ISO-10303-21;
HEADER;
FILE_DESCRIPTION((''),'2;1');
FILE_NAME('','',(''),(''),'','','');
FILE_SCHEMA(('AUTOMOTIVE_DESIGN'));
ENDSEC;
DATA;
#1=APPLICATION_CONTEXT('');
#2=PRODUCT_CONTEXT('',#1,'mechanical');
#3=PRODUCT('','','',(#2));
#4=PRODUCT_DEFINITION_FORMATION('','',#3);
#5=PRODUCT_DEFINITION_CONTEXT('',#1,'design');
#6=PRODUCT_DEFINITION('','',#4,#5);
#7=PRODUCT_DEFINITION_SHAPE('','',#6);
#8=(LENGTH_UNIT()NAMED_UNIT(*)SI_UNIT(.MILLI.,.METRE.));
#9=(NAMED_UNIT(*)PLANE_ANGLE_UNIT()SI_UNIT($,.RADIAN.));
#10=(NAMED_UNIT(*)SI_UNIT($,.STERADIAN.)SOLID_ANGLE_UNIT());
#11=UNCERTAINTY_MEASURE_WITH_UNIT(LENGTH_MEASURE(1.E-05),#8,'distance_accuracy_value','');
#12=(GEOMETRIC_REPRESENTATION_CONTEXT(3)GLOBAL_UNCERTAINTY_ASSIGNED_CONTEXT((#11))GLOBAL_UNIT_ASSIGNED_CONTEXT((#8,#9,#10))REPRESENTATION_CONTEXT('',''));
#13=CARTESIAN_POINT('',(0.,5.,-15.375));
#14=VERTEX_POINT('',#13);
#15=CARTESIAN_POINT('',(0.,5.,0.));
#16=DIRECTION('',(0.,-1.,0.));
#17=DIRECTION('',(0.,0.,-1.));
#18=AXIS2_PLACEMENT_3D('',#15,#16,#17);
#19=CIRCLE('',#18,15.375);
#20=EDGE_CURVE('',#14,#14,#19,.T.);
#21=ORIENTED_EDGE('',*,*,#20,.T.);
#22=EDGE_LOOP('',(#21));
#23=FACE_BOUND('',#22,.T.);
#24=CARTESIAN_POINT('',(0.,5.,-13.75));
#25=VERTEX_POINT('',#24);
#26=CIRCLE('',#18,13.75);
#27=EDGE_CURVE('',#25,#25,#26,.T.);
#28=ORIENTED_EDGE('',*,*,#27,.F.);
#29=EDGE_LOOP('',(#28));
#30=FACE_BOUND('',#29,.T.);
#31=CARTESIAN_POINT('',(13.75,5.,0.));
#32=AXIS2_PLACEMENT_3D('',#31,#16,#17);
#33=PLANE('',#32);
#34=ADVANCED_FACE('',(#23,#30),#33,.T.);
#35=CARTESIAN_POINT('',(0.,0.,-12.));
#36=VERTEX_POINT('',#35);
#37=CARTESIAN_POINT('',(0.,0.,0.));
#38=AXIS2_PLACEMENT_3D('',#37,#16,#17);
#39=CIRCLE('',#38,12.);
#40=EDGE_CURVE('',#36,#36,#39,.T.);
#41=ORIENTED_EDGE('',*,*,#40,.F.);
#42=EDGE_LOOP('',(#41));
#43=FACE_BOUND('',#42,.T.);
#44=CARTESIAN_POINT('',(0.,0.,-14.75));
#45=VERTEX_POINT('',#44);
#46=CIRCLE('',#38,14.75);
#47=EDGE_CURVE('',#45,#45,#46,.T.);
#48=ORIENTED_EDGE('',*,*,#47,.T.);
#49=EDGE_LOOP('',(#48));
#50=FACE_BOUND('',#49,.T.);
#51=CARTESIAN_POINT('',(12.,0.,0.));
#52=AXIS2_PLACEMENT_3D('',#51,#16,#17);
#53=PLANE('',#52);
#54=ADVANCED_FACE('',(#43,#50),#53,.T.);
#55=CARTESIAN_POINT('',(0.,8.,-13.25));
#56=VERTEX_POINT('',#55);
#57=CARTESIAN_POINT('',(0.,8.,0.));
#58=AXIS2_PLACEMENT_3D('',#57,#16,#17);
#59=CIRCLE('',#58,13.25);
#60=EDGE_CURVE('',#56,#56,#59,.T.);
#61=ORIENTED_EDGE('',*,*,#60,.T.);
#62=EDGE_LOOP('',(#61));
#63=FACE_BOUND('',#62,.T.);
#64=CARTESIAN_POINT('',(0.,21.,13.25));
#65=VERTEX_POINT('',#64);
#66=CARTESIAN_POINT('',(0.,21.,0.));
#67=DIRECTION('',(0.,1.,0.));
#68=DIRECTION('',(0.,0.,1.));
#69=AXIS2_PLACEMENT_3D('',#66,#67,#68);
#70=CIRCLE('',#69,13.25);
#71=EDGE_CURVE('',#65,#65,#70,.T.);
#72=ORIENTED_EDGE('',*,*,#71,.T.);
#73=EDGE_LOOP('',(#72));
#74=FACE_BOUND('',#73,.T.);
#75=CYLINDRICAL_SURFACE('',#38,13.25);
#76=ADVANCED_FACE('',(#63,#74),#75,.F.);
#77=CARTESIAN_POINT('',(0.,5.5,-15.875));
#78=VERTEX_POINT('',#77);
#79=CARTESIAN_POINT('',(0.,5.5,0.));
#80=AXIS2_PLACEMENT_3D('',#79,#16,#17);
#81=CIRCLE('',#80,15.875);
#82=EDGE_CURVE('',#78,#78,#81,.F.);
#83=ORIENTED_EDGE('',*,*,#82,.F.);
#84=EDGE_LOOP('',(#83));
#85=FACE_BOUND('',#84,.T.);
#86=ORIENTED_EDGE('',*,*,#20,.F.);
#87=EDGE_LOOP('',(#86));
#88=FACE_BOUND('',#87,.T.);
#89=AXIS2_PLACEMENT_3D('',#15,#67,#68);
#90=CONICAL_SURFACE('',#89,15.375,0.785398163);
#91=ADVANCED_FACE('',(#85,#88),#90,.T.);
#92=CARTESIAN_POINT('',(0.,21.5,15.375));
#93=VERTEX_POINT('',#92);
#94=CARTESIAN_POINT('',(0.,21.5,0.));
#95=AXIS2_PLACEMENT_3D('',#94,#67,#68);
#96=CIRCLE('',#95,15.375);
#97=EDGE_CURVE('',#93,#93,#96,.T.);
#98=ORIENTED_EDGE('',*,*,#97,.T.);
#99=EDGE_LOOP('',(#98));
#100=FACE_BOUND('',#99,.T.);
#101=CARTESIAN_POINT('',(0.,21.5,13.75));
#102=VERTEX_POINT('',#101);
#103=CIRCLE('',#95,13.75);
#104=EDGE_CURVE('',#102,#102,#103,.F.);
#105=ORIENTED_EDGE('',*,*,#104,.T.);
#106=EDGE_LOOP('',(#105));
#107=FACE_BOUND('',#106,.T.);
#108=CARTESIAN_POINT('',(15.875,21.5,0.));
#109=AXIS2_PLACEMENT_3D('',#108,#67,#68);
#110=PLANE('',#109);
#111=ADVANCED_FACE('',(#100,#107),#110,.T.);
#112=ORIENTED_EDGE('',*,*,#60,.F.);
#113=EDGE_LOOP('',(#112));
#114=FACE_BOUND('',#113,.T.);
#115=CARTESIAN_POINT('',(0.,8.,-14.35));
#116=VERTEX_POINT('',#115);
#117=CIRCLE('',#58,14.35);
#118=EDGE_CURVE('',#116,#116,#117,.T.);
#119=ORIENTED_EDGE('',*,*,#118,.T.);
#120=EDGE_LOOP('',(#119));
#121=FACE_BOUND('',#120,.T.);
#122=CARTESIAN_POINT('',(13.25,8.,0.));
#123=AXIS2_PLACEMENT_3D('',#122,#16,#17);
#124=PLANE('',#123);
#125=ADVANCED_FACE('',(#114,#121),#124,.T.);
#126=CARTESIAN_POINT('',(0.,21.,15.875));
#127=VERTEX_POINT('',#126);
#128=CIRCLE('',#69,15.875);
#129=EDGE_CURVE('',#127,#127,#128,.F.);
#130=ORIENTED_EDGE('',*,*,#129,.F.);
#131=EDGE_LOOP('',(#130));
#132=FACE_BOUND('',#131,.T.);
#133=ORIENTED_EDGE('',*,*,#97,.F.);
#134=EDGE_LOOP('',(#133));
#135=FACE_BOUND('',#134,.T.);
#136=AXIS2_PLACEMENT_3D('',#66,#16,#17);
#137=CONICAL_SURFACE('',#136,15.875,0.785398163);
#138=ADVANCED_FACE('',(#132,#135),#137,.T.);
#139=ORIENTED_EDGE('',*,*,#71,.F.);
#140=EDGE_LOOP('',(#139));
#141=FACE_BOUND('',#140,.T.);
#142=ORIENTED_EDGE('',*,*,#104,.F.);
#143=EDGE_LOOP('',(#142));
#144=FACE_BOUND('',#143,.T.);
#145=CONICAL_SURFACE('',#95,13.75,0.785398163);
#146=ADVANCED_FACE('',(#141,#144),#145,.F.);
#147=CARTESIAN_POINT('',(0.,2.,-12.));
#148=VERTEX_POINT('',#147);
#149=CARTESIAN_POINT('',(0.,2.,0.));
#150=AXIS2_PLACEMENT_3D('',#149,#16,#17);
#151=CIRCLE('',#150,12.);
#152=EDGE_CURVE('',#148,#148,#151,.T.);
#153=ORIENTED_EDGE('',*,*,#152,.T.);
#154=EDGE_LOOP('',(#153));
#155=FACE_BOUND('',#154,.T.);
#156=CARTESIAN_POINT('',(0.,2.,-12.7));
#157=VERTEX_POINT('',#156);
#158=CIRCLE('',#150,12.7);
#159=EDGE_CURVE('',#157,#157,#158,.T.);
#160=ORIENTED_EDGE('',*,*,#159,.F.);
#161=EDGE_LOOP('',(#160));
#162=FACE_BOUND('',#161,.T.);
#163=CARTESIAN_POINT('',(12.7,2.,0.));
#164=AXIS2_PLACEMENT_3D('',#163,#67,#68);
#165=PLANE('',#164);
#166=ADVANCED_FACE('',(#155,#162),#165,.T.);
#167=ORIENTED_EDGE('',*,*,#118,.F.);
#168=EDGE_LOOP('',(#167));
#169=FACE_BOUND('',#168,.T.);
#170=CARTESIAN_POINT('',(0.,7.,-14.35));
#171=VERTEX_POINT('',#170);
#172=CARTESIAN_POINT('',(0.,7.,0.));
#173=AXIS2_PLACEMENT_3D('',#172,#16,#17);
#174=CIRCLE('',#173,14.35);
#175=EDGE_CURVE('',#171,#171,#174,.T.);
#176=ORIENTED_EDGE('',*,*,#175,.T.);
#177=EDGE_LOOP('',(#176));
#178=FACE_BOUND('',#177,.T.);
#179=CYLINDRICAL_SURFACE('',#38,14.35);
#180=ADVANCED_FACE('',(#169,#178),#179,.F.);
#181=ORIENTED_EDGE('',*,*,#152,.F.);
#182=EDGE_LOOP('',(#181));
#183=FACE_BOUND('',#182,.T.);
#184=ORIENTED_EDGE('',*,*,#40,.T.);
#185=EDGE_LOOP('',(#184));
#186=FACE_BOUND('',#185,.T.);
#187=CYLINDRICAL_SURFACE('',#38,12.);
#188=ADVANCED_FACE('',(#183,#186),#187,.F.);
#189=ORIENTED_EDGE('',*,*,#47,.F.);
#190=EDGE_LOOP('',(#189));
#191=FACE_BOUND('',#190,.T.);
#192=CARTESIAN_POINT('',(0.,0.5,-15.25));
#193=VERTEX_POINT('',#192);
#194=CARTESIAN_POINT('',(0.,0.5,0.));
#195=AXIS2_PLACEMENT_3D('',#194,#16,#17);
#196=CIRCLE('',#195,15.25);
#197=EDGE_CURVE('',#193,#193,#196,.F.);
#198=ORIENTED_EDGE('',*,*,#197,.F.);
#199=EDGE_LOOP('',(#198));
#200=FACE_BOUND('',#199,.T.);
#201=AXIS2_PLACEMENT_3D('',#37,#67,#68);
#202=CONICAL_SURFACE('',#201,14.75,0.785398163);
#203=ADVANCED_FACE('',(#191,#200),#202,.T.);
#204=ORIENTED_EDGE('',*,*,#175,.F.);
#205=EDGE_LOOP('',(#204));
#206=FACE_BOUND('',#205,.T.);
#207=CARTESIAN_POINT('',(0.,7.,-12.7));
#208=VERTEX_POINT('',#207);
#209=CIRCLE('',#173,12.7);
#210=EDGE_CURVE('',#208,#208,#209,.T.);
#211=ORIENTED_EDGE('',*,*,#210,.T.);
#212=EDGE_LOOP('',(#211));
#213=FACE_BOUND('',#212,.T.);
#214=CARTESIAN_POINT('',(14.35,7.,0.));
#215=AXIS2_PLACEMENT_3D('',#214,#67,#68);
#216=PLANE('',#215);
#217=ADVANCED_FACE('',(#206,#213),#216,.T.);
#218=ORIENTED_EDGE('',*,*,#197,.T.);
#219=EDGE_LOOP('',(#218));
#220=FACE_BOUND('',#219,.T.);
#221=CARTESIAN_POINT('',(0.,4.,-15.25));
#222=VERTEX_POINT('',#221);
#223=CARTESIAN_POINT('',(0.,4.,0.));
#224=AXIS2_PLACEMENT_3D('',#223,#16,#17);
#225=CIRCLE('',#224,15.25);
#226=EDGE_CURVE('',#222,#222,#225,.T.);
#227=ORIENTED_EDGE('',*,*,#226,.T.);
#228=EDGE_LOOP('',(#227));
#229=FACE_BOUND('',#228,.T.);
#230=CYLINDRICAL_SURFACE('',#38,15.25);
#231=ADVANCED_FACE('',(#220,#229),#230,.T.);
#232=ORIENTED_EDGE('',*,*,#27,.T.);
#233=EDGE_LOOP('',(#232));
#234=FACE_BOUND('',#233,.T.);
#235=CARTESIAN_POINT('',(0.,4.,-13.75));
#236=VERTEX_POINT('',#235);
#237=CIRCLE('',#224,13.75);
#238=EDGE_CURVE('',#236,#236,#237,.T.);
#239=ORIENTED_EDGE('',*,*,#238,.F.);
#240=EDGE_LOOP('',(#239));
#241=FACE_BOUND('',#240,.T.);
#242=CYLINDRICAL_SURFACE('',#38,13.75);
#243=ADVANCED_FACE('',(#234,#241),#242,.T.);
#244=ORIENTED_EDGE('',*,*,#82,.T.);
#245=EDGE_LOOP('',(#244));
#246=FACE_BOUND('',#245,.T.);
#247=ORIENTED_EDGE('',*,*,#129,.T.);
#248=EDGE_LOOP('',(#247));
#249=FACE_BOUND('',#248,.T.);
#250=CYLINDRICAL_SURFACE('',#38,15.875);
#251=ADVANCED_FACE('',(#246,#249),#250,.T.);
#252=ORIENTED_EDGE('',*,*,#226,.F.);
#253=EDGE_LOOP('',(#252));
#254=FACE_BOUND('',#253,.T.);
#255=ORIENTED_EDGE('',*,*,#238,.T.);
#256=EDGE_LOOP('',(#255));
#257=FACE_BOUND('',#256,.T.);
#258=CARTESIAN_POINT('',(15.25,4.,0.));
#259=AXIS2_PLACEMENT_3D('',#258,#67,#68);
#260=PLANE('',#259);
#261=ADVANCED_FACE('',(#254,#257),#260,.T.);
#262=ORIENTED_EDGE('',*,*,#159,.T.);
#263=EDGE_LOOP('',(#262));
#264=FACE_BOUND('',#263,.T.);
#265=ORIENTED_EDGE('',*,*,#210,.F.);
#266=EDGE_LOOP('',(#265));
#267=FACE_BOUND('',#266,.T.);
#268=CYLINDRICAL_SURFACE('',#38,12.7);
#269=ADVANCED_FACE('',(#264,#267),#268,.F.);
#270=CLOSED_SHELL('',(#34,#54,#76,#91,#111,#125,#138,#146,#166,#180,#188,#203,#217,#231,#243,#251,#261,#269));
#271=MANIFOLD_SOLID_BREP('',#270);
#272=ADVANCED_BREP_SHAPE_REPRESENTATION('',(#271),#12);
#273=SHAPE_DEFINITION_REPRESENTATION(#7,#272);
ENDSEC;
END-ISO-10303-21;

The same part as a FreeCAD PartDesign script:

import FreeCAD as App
import Part
import Sketcher
from FreeCAD import Vector


def edges_at(feature, points):
    """Names of the edges that pass closest to the given points."""
    edges = feature.Shape.Edges
    near = lambda p: min(range(len(edges)), key=lambda i: edges[i].distToShape(Part.Vertex(*p))[0])
    return sorted({f"Edge{near(p) + 1}" for p in points})


def add_polygon(sketch, points):
    """Adds a closed chain of lines whose ends are joined by coincident constraints."""
    first, n = sketch.GeometryCount, len(points)
    for a, b in zip(points, points[1:] + points[:1]):
        sketch.addGeometry(Part.LineSegment(App.Vector(*a, 0), App.Vector(*b, 0)), False)
    for i in range(n):
        sketch.addConstraint(Sketcher.Constraint("Coincident", first + i, 2, first + (i + 1) % n, 1))

doc = App.newDocument("Part")
body = doc.addObject("PartDesign::Body", "Body")

sketch1 = body.newObject("Sketcher::SketchObject", "Sketch")
sketch1.AttachmentSupport = (doc.getObject("XY_Plane"), [""])
sketch1.MapMode = "FlatFace"
add_polygon(sketch1, [(12, 0), (15.2, 0), (15.2, 4), (13.8, 4), (13.8, 5), (15.9, 5), (15.9, 21.5), (13.2, 21.5), (13.2, 8), (14.3, 8), (14.3, 7), (12.7, 7), (12.7, 2), (12, 2)])
sketch1.addConstraint([
    Sketcher.Constraint("Horizontal", 0),
    Sketcher.Constraint("Vertical", 1),
    Sketcher.Constraint("Horizontal", 2),
    Sketcher.Constraint("Vertical", 3),
    Sketcher.Constraint("Horizontal", 4),
    Sketcher.Constraint("Vertical", 5),
    Sketcher.Constraint("Horizontal", 6),
    Sketcher.Constraint("Vertical", 7),
    Sketcher.Constraint("Horizontal", 8),
    Sketcher.Constraint("Vertical", 9),
    Sketcher.Constraint("Horizontal", 10),
    Sketcher.Constraint("Vertical", 11),
    Sketcher.Constraint("Horizontal", 12),
    Sketcher.Constraint("Vertical", 13),
    Sketcher.Constraint("PointOnObject", 0, 2, -1),
    Sketcher.Constraint("Equal", 3, 9),
    Sketcher.Constraint("DistanceY", 1, 1, 1, 2, 4.0),
    Sketcher.Constraint("DistanceY", 3, 1, 3, 2, 1.0),
    Sketcher.Constraint("DistanceY", 11, 2, 11, 1, 5.0),
    Sketcher.Constraint("DistanceY", 13, 2, 13, 1, 2.0),
    Sketcher.Constraint("DistanceX", 2, 2, 2, 1, 1.5),
    Sketcher.Constraint("DistanceX", 8, 1, 8, 2, 1.1),
    Sketcher.Constraint("DistanceX", 12, 2, 12, 1, 0.7),
    Sketcher.Constraint("DistanceY", 5, 1, 5, 2, 16.5),
    Sketcher.Constraint("DistanceX", -1, 1, 12, 2, 12.0),
    Sketcher.Constraint("DistanceX", 6, 2, 1, 2, 2.0),
    Sketcher.Constraint("DistanceX", 0, 1, 0, 2, 3.25),
    Sketcher.Constraint("DistanceX", 4, 1, 4, 2, 2.125),
])
revolution = body.newObject("PartDesign::Revolution", "Revolution")
revolution.Profile = sketch1
revolution.ReferenceAxis = (sketch1, ["V_Axis"])
revolution.Angle = 360
doc.recompute()

chamfer = body.newObject("PartDesign::Chamfer", "Chamfer")
chamfer.Base = (revolution, edges_at(revolution, [
    (0, 21.5, 13.25),
    (0, 21.5, 15.875),
    (0, 5, 15.875),
    (0, 0, 15.25),
]))
chamfer.Size = 0.5

doc.recompute()
